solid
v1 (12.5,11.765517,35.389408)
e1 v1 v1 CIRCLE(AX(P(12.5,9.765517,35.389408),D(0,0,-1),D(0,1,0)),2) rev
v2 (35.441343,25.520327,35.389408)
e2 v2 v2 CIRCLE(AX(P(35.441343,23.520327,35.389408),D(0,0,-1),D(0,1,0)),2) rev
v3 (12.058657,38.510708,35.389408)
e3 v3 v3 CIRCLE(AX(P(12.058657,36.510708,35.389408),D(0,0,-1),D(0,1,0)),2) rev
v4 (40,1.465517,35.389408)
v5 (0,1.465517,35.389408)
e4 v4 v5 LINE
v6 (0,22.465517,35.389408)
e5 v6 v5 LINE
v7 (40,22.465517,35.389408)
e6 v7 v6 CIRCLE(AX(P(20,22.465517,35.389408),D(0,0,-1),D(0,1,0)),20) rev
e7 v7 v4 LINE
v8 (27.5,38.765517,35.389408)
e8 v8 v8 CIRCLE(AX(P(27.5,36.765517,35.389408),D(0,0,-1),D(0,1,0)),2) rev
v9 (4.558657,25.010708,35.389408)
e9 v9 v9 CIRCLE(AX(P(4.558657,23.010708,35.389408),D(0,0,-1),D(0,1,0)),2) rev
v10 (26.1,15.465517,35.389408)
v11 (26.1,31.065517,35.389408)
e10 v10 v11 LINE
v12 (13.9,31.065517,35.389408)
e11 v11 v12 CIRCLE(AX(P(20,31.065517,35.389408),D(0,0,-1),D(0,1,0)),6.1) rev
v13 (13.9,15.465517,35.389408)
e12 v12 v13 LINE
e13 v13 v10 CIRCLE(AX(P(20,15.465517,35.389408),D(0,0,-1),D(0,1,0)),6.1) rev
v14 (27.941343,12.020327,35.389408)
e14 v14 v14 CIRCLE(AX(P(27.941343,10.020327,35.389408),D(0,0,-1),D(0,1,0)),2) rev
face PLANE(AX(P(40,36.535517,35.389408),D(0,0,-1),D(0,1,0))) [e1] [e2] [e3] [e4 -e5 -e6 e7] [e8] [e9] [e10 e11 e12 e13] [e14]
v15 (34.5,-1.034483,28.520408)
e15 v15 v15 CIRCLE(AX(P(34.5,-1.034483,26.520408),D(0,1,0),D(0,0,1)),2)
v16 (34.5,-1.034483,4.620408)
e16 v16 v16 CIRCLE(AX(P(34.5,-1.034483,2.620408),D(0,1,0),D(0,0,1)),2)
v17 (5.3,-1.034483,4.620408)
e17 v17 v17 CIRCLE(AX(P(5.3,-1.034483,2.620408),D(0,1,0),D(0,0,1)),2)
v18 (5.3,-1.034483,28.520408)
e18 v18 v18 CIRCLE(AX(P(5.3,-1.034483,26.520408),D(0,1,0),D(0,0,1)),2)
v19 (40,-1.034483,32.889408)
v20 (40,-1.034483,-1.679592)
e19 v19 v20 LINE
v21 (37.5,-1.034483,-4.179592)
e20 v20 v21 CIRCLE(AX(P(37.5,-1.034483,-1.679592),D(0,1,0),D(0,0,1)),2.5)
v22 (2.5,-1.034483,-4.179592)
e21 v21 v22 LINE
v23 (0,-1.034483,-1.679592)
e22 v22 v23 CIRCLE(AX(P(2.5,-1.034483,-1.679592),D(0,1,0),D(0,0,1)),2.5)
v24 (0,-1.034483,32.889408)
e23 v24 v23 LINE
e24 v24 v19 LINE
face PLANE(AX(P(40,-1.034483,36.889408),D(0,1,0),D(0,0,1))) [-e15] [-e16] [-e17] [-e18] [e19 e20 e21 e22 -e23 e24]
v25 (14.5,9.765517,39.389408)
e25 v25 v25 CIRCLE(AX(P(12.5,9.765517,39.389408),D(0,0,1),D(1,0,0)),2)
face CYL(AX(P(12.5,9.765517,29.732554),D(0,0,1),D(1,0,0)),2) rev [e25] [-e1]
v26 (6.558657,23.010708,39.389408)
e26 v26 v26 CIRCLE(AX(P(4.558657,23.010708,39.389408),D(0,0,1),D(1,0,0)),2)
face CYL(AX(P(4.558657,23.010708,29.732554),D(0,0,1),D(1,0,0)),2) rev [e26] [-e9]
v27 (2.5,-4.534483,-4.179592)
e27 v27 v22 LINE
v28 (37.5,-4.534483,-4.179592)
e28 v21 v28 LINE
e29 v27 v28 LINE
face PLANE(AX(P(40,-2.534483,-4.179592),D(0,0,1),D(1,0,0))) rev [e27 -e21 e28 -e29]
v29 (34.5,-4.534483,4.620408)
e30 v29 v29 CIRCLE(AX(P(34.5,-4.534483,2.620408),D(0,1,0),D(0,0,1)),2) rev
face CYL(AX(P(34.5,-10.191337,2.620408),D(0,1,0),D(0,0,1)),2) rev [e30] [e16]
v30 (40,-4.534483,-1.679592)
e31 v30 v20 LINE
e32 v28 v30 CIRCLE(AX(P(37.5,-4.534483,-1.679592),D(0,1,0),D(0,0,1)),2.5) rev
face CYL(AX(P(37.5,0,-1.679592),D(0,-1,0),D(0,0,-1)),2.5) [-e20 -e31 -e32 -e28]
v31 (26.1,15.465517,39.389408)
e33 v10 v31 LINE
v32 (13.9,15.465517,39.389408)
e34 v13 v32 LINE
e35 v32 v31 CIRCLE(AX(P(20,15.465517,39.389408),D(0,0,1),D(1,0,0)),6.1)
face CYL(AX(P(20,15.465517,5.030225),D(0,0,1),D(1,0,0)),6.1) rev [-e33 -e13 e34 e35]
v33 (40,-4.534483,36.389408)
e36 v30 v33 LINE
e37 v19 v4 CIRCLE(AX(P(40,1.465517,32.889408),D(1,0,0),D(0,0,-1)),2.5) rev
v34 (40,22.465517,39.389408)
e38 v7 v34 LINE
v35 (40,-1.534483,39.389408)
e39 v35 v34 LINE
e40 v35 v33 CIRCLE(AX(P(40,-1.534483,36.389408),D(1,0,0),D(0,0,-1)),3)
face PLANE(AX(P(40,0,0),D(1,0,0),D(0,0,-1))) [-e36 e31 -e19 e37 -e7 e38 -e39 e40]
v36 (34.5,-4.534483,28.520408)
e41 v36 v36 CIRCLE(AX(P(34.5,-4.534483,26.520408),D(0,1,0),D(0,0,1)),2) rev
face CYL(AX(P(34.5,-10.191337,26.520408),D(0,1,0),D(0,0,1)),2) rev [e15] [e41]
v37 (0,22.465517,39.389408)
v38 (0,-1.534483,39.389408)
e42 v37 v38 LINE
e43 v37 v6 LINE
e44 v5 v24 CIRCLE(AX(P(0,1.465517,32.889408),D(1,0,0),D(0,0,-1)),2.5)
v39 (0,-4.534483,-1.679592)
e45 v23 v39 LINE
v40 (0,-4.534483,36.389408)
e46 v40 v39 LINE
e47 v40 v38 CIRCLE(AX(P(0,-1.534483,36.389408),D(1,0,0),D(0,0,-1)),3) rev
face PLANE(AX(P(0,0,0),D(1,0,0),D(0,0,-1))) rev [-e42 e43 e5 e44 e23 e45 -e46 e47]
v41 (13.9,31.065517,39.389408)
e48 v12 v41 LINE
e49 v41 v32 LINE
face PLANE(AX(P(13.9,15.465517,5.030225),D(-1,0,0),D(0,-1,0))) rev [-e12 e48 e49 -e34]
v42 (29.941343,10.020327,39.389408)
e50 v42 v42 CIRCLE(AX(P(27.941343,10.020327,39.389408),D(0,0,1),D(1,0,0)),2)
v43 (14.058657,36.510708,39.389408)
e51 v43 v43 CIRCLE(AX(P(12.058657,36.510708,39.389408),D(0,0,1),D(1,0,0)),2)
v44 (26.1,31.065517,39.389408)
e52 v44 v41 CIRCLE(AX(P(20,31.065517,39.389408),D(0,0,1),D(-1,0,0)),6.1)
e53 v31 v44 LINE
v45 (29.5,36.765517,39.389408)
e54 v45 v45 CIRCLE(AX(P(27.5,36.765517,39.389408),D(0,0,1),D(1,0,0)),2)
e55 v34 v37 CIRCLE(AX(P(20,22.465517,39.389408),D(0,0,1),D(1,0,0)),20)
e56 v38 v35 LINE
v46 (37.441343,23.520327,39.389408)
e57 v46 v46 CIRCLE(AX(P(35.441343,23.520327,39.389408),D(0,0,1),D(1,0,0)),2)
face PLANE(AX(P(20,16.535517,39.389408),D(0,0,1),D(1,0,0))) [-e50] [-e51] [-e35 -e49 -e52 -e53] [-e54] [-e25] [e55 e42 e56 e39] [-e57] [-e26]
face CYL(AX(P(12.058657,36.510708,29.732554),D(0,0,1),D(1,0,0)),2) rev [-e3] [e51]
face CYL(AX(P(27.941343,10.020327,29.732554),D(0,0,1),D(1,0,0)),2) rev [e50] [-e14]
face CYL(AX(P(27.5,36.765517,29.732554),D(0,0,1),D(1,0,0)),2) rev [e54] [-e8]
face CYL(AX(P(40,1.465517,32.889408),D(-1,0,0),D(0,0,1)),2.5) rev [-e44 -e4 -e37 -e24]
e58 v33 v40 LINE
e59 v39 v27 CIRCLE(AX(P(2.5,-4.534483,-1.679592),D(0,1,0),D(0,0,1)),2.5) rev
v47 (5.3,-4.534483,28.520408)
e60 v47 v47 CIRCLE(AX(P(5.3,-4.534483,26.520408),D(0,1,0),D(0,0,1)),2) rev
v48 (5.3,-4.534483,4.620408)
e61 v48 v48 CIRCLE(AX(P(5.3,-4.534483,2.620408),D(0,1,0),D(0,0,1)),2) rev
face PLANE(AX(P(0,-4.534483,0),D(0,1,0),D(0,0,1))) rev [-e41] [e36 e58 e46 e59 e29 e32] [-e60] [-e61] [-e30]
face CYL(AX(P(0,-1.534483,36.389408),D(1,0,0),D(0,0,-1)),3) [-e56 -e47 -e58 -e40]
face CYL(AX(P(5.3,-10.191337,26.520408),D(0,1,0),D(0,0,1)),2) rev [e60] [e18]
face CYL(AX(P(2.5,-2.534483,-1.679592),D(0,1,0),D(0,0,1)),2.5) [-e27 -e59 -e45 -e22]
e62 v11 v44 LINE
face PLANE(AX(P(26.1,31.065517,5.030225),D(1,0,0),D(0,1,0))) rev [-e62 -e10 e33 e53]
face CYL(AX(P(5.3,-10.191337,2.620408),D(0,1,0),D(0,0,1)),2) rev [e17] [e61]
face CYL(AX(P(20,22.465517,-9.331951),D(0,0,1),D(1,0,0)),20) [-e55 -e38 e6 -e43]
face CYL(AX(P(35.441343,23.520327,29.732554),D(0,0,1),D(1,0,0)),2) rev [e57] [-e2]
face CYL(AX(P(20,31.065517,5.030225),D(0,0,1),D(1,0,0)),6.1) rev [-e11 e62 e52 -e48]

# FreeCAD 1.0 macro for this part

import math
import FreeCAD as App
import Part
import Sketcher

V = App.Vector
Q = App.Units.Quantity


def edges_at(feature, points):
    """Names of the edges that pass closest to the given points."""
    edges = feature.Shape.Edges
    near = lambda p: min(range(len(edges)), key=lambda i: edges[i].distToShape(Part.Vertex(*p))[0])
    return sorted({f"Edge{near(p) + 1}" for p in points})

doc = App.newDocument("Part")
params = doc.addObject("Spreadsheet::Sheet", "Params")
for row, (alias, value) in enumerate([
    ("sketch1_width", "1.5 mm"),
    ("sketch1_width2", "39.07 mm"),
    ("pad1_length", "40 mm"),
    ("sketch2_diameter", "3.3 mm"),
    ("pocket1_length", "40 mm"),
    ("sketch3_diameter", "21 mm"),
    ("sketch3_radius", "20 mm"),
    ("sketch3_diameter2", "3.3 mm"),
    ("pocket2_length", "40 mm"),
    ("sketch4_diameter", "21 mm"),
    ("sketch4_radius", "20 mm"),
    ("sketch4_diameter2", "3.3 mm"),
    ("sketch4_height", "19.07 mm"),
    ("pad2_length", "2.5 mm"),
    ("fillet_radius", "2.5 mm"),
    ("sketch5_diameter", "3.3 mm"),
    ("sketch5_width", "40 mm"),
    ("pad3_length", "2 mm"),
    ("fillet2_radius", "2.5 mm"),
    ("sketch6_diameter", "3.3 mm"),
    ("pad4_length", "3.5 mm"),
    ("sketch7_diameter", "4 mm"),
    ("pocket3_length", "3.5 mm"),
    ("fillet3_radius", "3 mm"),
    ("sketch8_width", "40 mm"),
    ("sketch8_height", "4 mm"),
    ("pad5_length", "27 mm"),
    ("fillet4_radius", "3 mm"),
    ("sketch9_radius", "20 mm"),
    ("pad6_length", "4 mm"),
    ("sketch10_radius", "6.1 mm"),
    ("sketch10_height", "15.6 mm"),
    ("pocket4_length", "4 mm"),
    ("sketch11_diameter", "4 mm"),
    ("pocket5_length", "4 mm"),
], start=1):
    params.set(f"A{row}", alias)
    params.set(f"B{row}", "=" + value)
    params.setAlias(f"B{row}", alias)

body = doc.addObject("PartDesign::Body", "Body")

sketch1 = doc.addObject("Sketcher::SketchObject", "Sketch")
body.addObject(sketch1)
sketch1.AttachmentSupport = (doc.YZ_Plane, [""])
sketch1.MapMode = "FlatFace"
sketch1.addGeometry(Part.LineSegment(V(36.535517, 36.889408, 0), V(-2.534483, 36.889408, 0)), False)
sketch1.addGeometry(Part.LineSegment(V(-2.534483, 36.889408, 0), V(-2.534483, -4.179592, 0)), False)
sketch1.addGeometry(Part.LineSegment(V(-2.534483, -4.179592, 0), V(-1.034483, -4.179592, 0)), False)
sketch1.addGeometry(Part.LineSegment(V(-1.034483, -4.179592, 0), V(-1.034483, 35.389408, 0)), False)
sketch1.addGeometry(Part.LineSegment(V(-1.034483, 35.389408, 0), V(36.535517, 35.389408, 0)), False)
sketch1.addGeometry(Part.LineSegment(V(36.535517, 35.389408, 0), V(36.535517, 36.889408, 0)), False)
sketch1.addConstraint(Sketcher.Constraint("Coincident", 0, 2, 1, 1))
sketch1.addConstraint(Sketcher.Constraint("Coincident", 1, 2, 2, 1))
sketch1.addConstraint(Sketcher.Constraint("Coincident", 2, 2, 3, 1))
sketch1.addConstraint(Sketcher.Constraint("Coincident", 3, 2, 4, 1))
sketch1.addConstraint(Sketcher.Constraint("Coincident", 4, 2, 5, 1))
sketch1.addConstraint(Sketcher.Constraint("Coincident", 5, 2, 0, 1))
sketch1.addConstraint(Sketcher.Constraint("Horizontal", 0))
sketch1.addConstraint(Sketcher.Constraint("Vertical", 1))
sketch1.addConstraint(Sketcher.Constraint("Horizontal", 2))
sketch1.addConstraint(Sketcher.Constraint("Vertical", 3))
sketch1.addConstraint(Sketcher.Constraint("Horizontal", 4))
sketch1.addConstraint(Sketcher.Constraint("Vertical", 5))
sketch1.addConstraint(Sketcher.Constraint("Equal", 2, 5))
sketch1.addConstraint(Sketcher.Constraint("DistanceX", 2, 1, 2, 2, Q("1.5 mm")))
sketch1.addConstraint(Sketcher.Constraint("DistanceX", 0, 2, 0, 1, Q("39.07 mm")))
sketch1.addConstraint(Sketcher.Constraint("DistanceY", 1, 2, 1, 1, Q("41.069 mm")))
sketch1.addConstraint(Sketcher.Constraint("DistanceY", -1, 1, 0, 2, Q("36.889408 mm")))
sketch1.addConstraint(Sketcher.Constraint("DistanceX", 0, 2, -1, 1, Q("2.534483 mm")))
sketch1.setExpression("Constraints[13]", "Params.sketch1_width")
sketch1.setExpression("Constraints[14]", "Params.sketch1_width2")
pad1 = doc.addObject("PartDesign::Pad", "Pad")
body.addObject(pad1)
pad1.Profile = sketch1
pad1.setExpression("Length", "Params.pad1_length")

sketch2 = doc.addObject("Sketcher::SketchObject", "Sketch001")
body.addObject(sketch2)
sketch2.AttachmentSupport = (doc.XZ_Plane, [""])
sketch2.MapMode = "FlatFace"
sketch2.AttachmentOffset = App.Placement(V(0, 0, 1.034483), App.Rotation())
sketch2.addGeometry(Part.Circle(V(4.5, 30.820408, 0), V(0, 0, 1), 1.65), False)
sketch2.addGeometry(Part.Circle(V(4.5, 20.820408, 0), V(0, 0, 1), 1.65), False)
sketch2.addGeometry(Part.Circle(V(4.5, 10.820408, 0), V(0, 0, 1), 1.65), False)
sketch2.addGeometry(Part.Circle(V(4.5, 0.820408, 0), V(0, 0, 1), 1.65), False)
sketch2.addGeometry(Part.Circle(V(35.5, 30.820408, 0), V(0, 0, 1), 1.65), False)
sketch2.addGeometry(Part.Circle(V(35.5, 20.820408, 0), V(0, 0, 1), 1.65), False)
sketch2.addGeometry(Part.Circle(V(35.5, 10.820408, 0), V(0, 0, 1), 1.65), False)
sketch2.addGeometry(Part.Circle(V(35.5, 0.820408, 0), V(0, 0, 1), 1.65), False)
sketch2.addConstraint(Sketcher.Constraint("Equal", 0, 1))
sketch2.addConstraint(Sketcher.Constraint("Equal", 1, 2))
sketch2.addConstraint(Sketcher.Constraint("Equal", 2, 3))
sketch2.addConstraint(Sketcher.Constraint("Equal", 3, 4))
sketch2.addConstraint(Sketcher.Constraint("Equal", 4, 5))
sketch2.addConstraint(Sketcher.Constraint("Equal", 5, 6))
sketch2.addConstraint(Sketcher.Constraint("Equal", 6, 7))
sketch2.addConstraint(Sketcher.Constraint("Horizontal", 0, 3, 4, 3))
sketch2.addConstraint(Sketcher.Constraint("Horizontal", 1, 3, 5, 3))
sketch2.addConstraint(Sketcher.Constraint("Horizontal", 2, 3, 6, 3))
sketch2.addConstraint(Sketcher.Constraint("Horizontal", 3, 3, 7, 3))
sketch2.addConstraint(Sketcher.Constraint("Vertical", 0, 3, 1, 3))
sketch2.addConstraint(Sketcher.Constraint("Vertical", 1, 3, 2, 3))
sketch2.addConstraint(Sketcher.Constraint("Vertical", 2, 3, 3, 3))
sketch2.addConstraint(Sketcher.Constraint("Vertical", 4, 3, 5, 3))
sketch2.addConstraint(Sketcher.Constraint("Vertical", 5, 3, 6, 3))
sketch2.addConstraint(Sketcher.Constraint("Vertical", 6, 3, 7, 3))
sketch2.addConstraint(Sketcher.Constraint("Diameter", 0, Q("3.3 mm")))
sketch2.addConstraint(Sketcher.Constraint("DistanceY", 1, 3, 0, 3, Q("10 mm")))
sketch2.addConstraint(Sketcher.Constraint("DistanceY", 2, 3, 1, 3, Q("10 mm")))
sketch2.addConstraint(Sketcher.Constraint("DistanceY", 3, 3, 2, 3, Q("10 mm")))
sketch2.addConstraint(Sketcher.Constraint("DistanceX", 0, 3, 4, 3, Q("31 mm")))
sketch2.addConstraint(Sketcher.Constraint("DistanceX", -1, 1, 0, 3, Q("4.5 mm")))
sketch2.addConstraint(Sketcher.Constraint("DistanceY", -1, 1, 0, 3, Q("30.820408 mm")))
sketch2.setExpression("Constraints[17]", "Params.sketch2_diameter")
pocket1 = doc.addObject("PartDesign::Pocket", "Pocket")
body.addObject(pocket1)
pocket1.Profile = sketch2
pocket1.setExpression("Length", "Params.pocket1_length")
pocket1.Reversed = True

sketch3 = doc.addObject("Sketcher::SketchObject", "Sketch002")
body.addObject(sketch3)
sketch3.AttachmentSupport = (doc.XY_Plane, [""])
sketch3.MapMode = "FlatFace"
sketch3.AttachmentOffset = App.Placement(V(0, 0, 35.389408), App.Rotation())
sketch3.addGeometry(Part.Circle(V(20, 16.535517, 0), V(0, 0, 1), 10.5), False)
sketch3.addGeometry(Part.Circle(V(11.070999, 25.983953, 0), V(0, 0, 1), 1.65), False)
sketch3.addGeometry(Part.Circle(V(10.551564, 7.606516, 0), V(0, 0, 1), 1.65), False)
sketch3.addGeometry(Part.Circle(V(29.448436, 25.464519, 0), V(0, 0, 1), 1.65), False)
sketch3.addGeometry(Part.Circle(V(28.929001, 7.087082, 0), V(0, 0, 1), 1.65), False)
sketch3.addGeometry(Part.LineSegment(V(40, 36.535517, 0), V(40, 16.535517, 0)), False)
sketch3.addGeometry(Part.ArcOfCircle(Part.Circle(V(20, 16.535517, 0), V(0, 0, 1), 20), math.radians(0), math.radians(90)), False)
sketch3.addGeometry(Part.LineSegment(V(20, 36.535517, 0), V(40, 36.535517, 0)), False)
sketch3.addGeometry(Part.LineSegment(V(0, 36.535517, 0), V(20, 36.535517, 0)), False)
sketch3.addGeometry(Part.ArcOfCircle(Part.Circle(V(20, 16.535517, 0), V(0, 0, 1), 20), math.radians(90), math.radians(179.999997)), False)
sketch3.addGeometry(Part.LineSegment(V(0, 16.535518, 0), V(0, 36.535517, 0)), False)
sketch3.addConstraint(Sketcher.Constraint("Tangent", 5, 2, 6, 1))
sketch3.addConstraint(Sketcher.Constraint("Tangent", 6, 2, 7, 1))
sketch3.addConstraint(Sketcher.Constraint("Coincident", 7, 2, 5, 1))
sketch3.addConstraint(Sketcher.Constraint("Tangent", 8, 2, 9, 1))
sketch3.addConstraint(Sketcher.Constraint("Tangent", 9, 2, 10, 1))
sketch3.addConstraint(Sketcher.Constraint("Coincident", 10, 2, 8, 1))
sketch3.addConstraint(Sketcher.Constraint("Vertical", 5))
sketch3.addConstraint(Sketcher.Constraint("Horizontal", 7))
sketch3.addConstraint(Sketcher.Constraint("Horizontal", 8))
sketch3.addConstraint(Sketcher.Constraint("Vertical", 10))
sketch3.addConstraint(Sketcher.Constraint("Coincident", 6, 3, 0, 3))
sketch3.addConstraint(Sketcher.Constraint("Coincident", 9, 3, 0, 3))
sketch3.addConstraint(Sketcher.Constraint("Equal", 1, 2))
sketch3.addConstraint(Sketcher.Constraint("Equal", 2, 3))
sketch3.addConstraint(Sketcher.Constraint("Equal", 3, 4))
sketch3.addConstraint(Sketcher.Constraint("Equal", 6, 9))
sketch3.addConstraint(Sketcher.Constraint("PointOnObject", 9, 2, -2))
sketch3.addConstraint(Sketcher.Constraint("Diameter", 0, Q("21 mm")))
sketch3.addConstraint(Sketcher.Constraint("Radius", 6, Q("20 mm")))
sketch3.addConstraint(Sketcher.Constraint("Diameter", 1, Q("3.3 mm")))
sketch3.addConstraint(Sketcher.Constraint("DistanceX", -1, 1, 1, 3, Q("11.070999 mm")))
sketch3.addConstraint(Sketcher.Constraint("DistanceX", -1, 1, 4, 3, Q("28.929001 mm")))
sketch3.addConstraint(Sketcher.Constraint("DistanceY", 2, 3, 0, 3, Q("8.929001 mm")))
sketch3.addConstraint(Sketcher.Constraint("DistanceY", 0, 3, 3, 3, Q("8.929001 mm")))
sketch3.addConstraint(Sketcher.Constraint("DistanceY", -1, 1, 3, 3, Q("25.464519 mm")))
sketch3.addConstraint(Sketcher.Constraint("DistanceY", -1, 1, 4, 3, Q("7.087082 mm")))
sketch3.addConstraint(Sketcher.Constraint("DistanceX", 2, 3, 3, 3, Q("18.896871 mm")))
sketch3.addConstraint(Sketcher.Constraint("DistanceY", 4, 3, 1, 3, Q("18.896871 mm")))
sketch3.addConstraint(Sketcher.Constraint("DistanceX", -1, 1, 2, 3, Q("10.551564 mm")))
sketch3.setExpression("Constraints[17]", "Params.sketch3_diameter")
sketch3.setExpression("Constraints[18]", "Params.sketch3_radius")
sketch3.setExpression("Constraints[19]", "Params.sketch3_diameter2")
pocket2 = doc.addObject("PartDesign::Pocket", "Pocket001")
body.addObject(pocket2)
pocket2.Profile = sketch3
pocket2.setExpression("Length", "Params.pocket2_length")
pocket2.Reversed = True

sketch4 = doc.addObject("Sketcher::SketchObject", "Sketch003")
body.addObject(sketch4)
sketch4.AttachmentSupport = (doc.XY_Plane, [""])
sketch4.MapMode = "FlatFace"
sketch4.AttachmentOffset = App.Placement(V(0, 0, 36.889408), App.Rotation())
sketch4.addGeometry(Part.LineSegment(V(0, 16.535517, 0), V(0, -2.534483, 0)), False)
sketch4.addGeometry(Part.LineSegment(V(0, -2.534483, 0), V(40, -2.534483, 0)), False)
sketch4.addGeometry(Part.LineSegment(V(40, -2.534483, 0), V(40, 16.535517, 0)), False)
sketch4.addGeometry(Part.ArcOfCircle(Part.Circle(V(20, 16.535517, 0), V(0, 0, 1), 20), math.radians(0), math.radians(180)), False)
sketch4.addGeometry(Part.Circle(V(10.551564, 7.606516, 0), V(0, 0, 1), 1.65), False)
sketch4.addGeometry(Part.Circle(V(28.929001, 7.087082, 0), V(0, 0, 1), 1.65), False)
sketch4.addGeometry(Part.Circle(V(20, 16.535517, 0), V(0, 0, 1), 10.5), False)
sketch4.addGeometry(Part.Circle(V(11.070999, 25.983953, 0), V(0, 0, 1), 1.65), False)
sketch4.addGeometry(Part.Circle(V(29.448436, 25.464519, 0), V(0, 0, 1), 1.65), False)
sketch4.addConstraint(Sketcher.Constraint("Coincident", 0, 2, 1, 1))
sketch4.addConstraint(Sketcher.Constraint("Coincident", 1, 2, 2, 1))
sketch4.addConstraint(Sketcher.Constraint("Tangent", 2, 2, 3, 1))
sketch4.addConstraint(Sketcher.Constraint("Tangent", 3, 2, 0, 1))
sketch4.addConstraint(Sketcher.Constraint("Vertical", 0))
sketch4.addConstraint(Sketcher.Constraint("Horizontal", 1))
sketch4.addConstraint(Sketcher.Constraint("Vertical", 2))
sketch4.addConstraint(Sketcher.Constraint("Coincident", 6, 3, 3, 3))
sketch4.addConstraint(Sketcher.Constraint("Equal", 4, 5))
sketch4.addConstraint(Sketcher.Constraint("Equal", 5, 7))
sketch4.addConstraint(Sketcher.Constraint("Equal", 7, 8))
sketch4.addConstraint(Sketcher.Constraint("PointOnObject", 0, 2, -2))
sketch4.addConstraint(Sketcher.Constraint("Diameter", 6, Q("21 mm")))
sketch4.addConstraint(Sketcher.Constraint("Radius", 3, Q("20 mm")))
sketch4.addConstraint(Sketcher.Constraint("Diameter", 4, Q("3.3 mm")))
sketch4.addConstraint(Sketcher.Constraint("DistanceY", 0, 2, 0, 1, Q("19.07 mm")))
sketch4.addConstraint(Sketcher.Constraint("DistanceX", -1, 1, 5, 3, Q("28.929001 mm")))
sketch4.addConstraint(Sketcher.Constraint("DistanceX", -1, 1, 7, 3, Q("11.070999 mm")))
sketch4.addConstraint(Sketcher.Constraint("DistanceY", 4, 3, 3, 3, Q("8.929001 mm")))
sketch4.addConstraint(Sketcher.Constraint("DistanceY", 3, 3, 8, 3, Q("8.929001 mm")))
sketch4.addConstraint(Sketcher.Constraint("DistanceY", -1, 1, 5, 3, Q("7.087082 mm")))
sketch4.addConstraint(Sketcher.Constraint("DistanceY", -1, 1, 8, 3, Q("25.464519 mm")))
sketch4.addConstraint(Sketcher.Constraint("DistanceY", 5, 3, 7, 3, Q("18.896871 mm")))
sketch4.addConstraint(Sketcher.Constraint("DistanceX", 4, 3, 8, 3, Q("18.896871 mm")))
sketch4.addConstraint(Sketcher.Constraint("DistanceX", -1, 1, 4, 3, Q("10.551564 mm")))
sketch4.setExpression("Constraints[12]", "Params.sketch4_diameter")
sketch4.setExpression("Constraints[13]", "Params.sketch4_radius")
sketch4.setExpression("Constraints[14]", "Params.sketch4_diameter2")
sketch4.setExpression("Constraints[15]", "Params.sketch4_height")
pad2 = doc.addObject("PartDesign::Pad", "Pad001")
body.addObject(pad2)
pad2.Profile = sketch4
pad2.setExpression("Length", "Params.pad2_length")
doc.recompute()

fillet = doc.addObject("PartDesign::Fillet", "Fillet")
body.addObject(fillet)
fillet.Base = (pad2, edges_at(pad2, [(20, -1.034, 35.389)]))
fillet.setExpression("Radius", "Params.fillet_radius")

sketch5 = doc.addObject("Sketcher::SketchObject", "Sketch004")
body.addObject(sketch5)
sketch5.AttachmentSupport = (doc.XZ_Plane, [""])
sketch5.MapMode = "FlatFace"
sketch5.AttachmentOffset = App.Placement(V(0, 0, 2.534483), App.Rotation())
sketch5.addGeometry(Part.LineSegment(V(0, 39.389408, 0), V(0, -4.179592, 0)), False)
sketch5.addGeometry(Part.LineSegment(V(0, -4.179592, 0), V(40, -4.179592, 0)), False)
sketch5.addGeometry(Part.LineSegment(V(40, -4.179592, 0), V(40, 39.389408, 0)), False)
sketch5.addGeometry(Part.LineSegment(V(40, 39.389408, 0), V(0, 39.389408, 0)), False)
sketch5.addGeometry(Part.Circle(V(4.5, 0.820408, 0), V(0, 0, 1), 1.65), False)
sketch5.addGeometry(Part.Circle(V(4.5, 10.820408, 0), V(0, 0, 1), 1.65), False)
sketch5.addGeometry(Part.Circle(V(35.5, 0.820408, 0), V(0, 0, 1), 1.65), False)
sketch5.addGeometry(Part.Circle(V(35.5, 10.820408, 0), V(0, 0, 1), 1.65), False)
sketch5.addGeometry(Part.Circle(V(4.5, 20.820408, 0), V(0, 0, 1), 1.65), False)
sketch5.addGeometry(Part.Circle(V(4.5, 30.820408, 0), V(0, 0, 1), 1.65), False)
sketch5.addGeometry(Part.Circle(V(35.5, 20.820408, 0), V(0, 0, 1), 1.65), False)
sketch5.addGeometry(Part.Circle(V(35.5, 30.820408, 0), V(0, 0, 1), 1.65), False)
sketch5.addConstraint(Sketcher.Constraint("Coincident", 0, 2, 1, 1))
sketch5.addConstraint(Sketcher.Constraint("Coincident", 1, 2, 2, 1))
sketch5.addConstraint(Sketcher.Constraint("Coincident", 2, 2, 3, 1))
sketch5.addConstraint(Sketcher.Constraint("Coincident", 3, 2, 0, 1))
sketch5.addConstraint(Sketcher.Constraint("Vertical", 0))
sketch5.addConstraint(Sketcher.Constraint("Horizontal", 1))
sketch5.addConstraint(Sketcher.Constraint("Vertical", 2))
sketch5.addConstraint(Sketcher.Constraint("Horizontal", 3))
sketch5.addConstraint(Sketcher.Constraint("Equal", 4, 5))
sketch5.addConstraint(Sketcher.Constraint("Equal", 5, 6))
sketch5.addConstraint(Sketcher.Constraint("Equal", 6, 7))
sketch5.addConstraint(Sketcher.Constraint("Equal", 7, 8))
sketch5.addConstraint(Sketcher.Constraint("Equal", 8, 9))
sketch5.addConstraint(Sketcher.Constraint("Equal", 9, 10))
sketch5.addConstraint(Sketcher.Constraint("Equal", 10, 11))
sketch5.addConstraint(Sketcher.Constraint("PointOnObject", 0, 2, -2))
sketch5.addConstraint(Sketcher.Constraint("Horizontal", 4, 3, 6, 3))
sketch5.addConstraint(Sketcher.Constraint("Horizontal", 5, 3, 7, 3))
sketch5.addConstraint(Sketcher.Constraint("Horizontal", 8, 3, 10, 3))
sketch5.addConstraint(Sketcher.Constraint("Horizontal", 9, 3, 11, 3))
sketch5.addConstraint(Sketcher.Constraint("Vertical", 4, 3, 5, 3))
sketch5.addConstraint(Sketcher.Constraint("Vertical", 6, 3, 7, 3))
sketch5.addConstraint(Sketcher.Constraint("Vertical", 5, 3, 8, 3))
sketch5.addConstraint(Sketcher.Constraint("Vertical", 8, 3, 9, 3))
sketch5.addConstraint(Sketcher.Constraint("Vertical", 7, 3, 10, 3))
sketch5.addConstraint(Sketcher.Constraint("Vertical", 10, 3, 11, 3))
sketch5.addConstraint(Sketcher.Constraint("Diameter", 4, Q("3.3 mm")))
sketch5.addConstraint(Sketcher.Constraint("DistanceX", 1, 1, 1, 2, Q("40 mm")))
sketch5.addConstraint(Sketcher.Constraint("DistanceY", 4, 3, 5, 3, Q("10 mm")))
sketch5.addConstraint(Sketcher.Constraint("DistanceX", 4, 3, 6, 3, Q("31 mm")))
sketch5.addConstraint(Sketcher.Constraint("DistanceY", 5, 3, 8, 3, Q("10 mm")))
sketch5.addConstraint(Sketcher.Constraint("DistanceY", 8, 3, 9, 3, Q("10 mm")))
sketch5.addConstraint(Sketcher.Constraint("DistanceY", 0, 2, 4, 3, Q("5 mm")))
sketch5.addConstraint(Sketcher.Constraint("DistanceX", -1, 1, 4, 3, Q("4.5 mm")))
sketch5.addConstraint(Sketcher.Constraint("DistanceY", 0, 2, 0, 1, Q("43.569 mm")))
sketch5.addConstraint(Sketcher.Constraint("DistanceY", -1, 1, 4, 3, Q("0.820408 mm")))
sketch5.setExpression("Constraints[26]", "Params.sketch5_diameter")
sketch5.setExpression("Constraints[27]", "Params.sketch5_width")
pad3 = doc.addObject("PartDesign::Pad", "Pad002")
body.addObject(pad3)
pad3.Profile = sketch5
pad3.setExpression("Length", "Params.pad3_length")
doc.recompute()

fillet2 = doc.addObject("PartDesign::Fillet", "Fillet001")
body.addObject(fillet2)
fillet2.Base = (pad3, edges_at(pad3, [(40, -2.784, -4.18), (0, -2.784, -4.18)]))
fillet2.setExpression("Radius", "Params.fillet2_radius")

sketch6 = doc.addObject("Sketcher::SketchObject", "Sketch005")
body.addObject(sketch6)
sketch6.AttachmentSupport = (doc.XZ_Plane, [""])
sketch6.MapMode = "FlatFace"
sketch6.AttachmentOffset = App.Placement(V(0, 0, 1.034483), App.Rotation())
sketch6.addGeometry(Part.Circle(V(35.5, 0.820408, 0), V(0, 0, 1), 1.65), False)
sketch6.addGeometry(Part.Circle(V(35.5, 10.820408, 0), V(0, 0, 1), 1.65), False)
sketch6.addGeometry(Part.Circle(V(35.5, 20.820408, 0), V(0, 0, 1), 1.65), False)
sketch6.addGeometry(Part.Circle(V(35.5, 30.820408, 0), V(0, 0, 1), 1.65), False)
sketch6.addGeometry(Part.Circle(V(4.5, 0.820408, 0), V(0, 0, 1), 1.65), False)
sketch6.addGeometry(Part.Circle(V(4.5, 10.820408, 0), V(0, 0, 1), 1.65), False)
sketch6.addGeometry(Part.Circle(V(4.5, 20.820408, 0), V(0, 0, 1), 1.65), False)
sketch6.addGeometry(Part.Circle(V(4.5, 30.820408, 0), V(0, 0, 1), 1.65), False)
sketch6.addConstraint(Sketcher.Constraint("Equal", 0, 1))
sketch6.addConstraint(Sketcher.Constraint("Equal", 1, 2))
sketch6.addConstraint(Sketcher.Constraint("Equal", 2, 3))
sketch6.addConstraint(Sketcher.Constraint("Equal", 3, 4))
sketch6.addConstraint(Sketcher.Constraint("Equal", 4, 5))
sketch6.addConstraint(Sketcher.Constraint("Equal", 5, 6))
sketch6.addConstraint(Sketcher.Constraint("Equal", 6, 7))
sketch6.addConstraint(Sketcher.Constraint("Horizontal", 0, 3, 4, 3))
sketch6.addConstraint(Sketcher.Constraint("Horizontal", 1, 3, 5, 3))
sketch6.addConstraint(Sketcher.Constraint("Horizontal", 2, 3, 6, 3))
sketch6.addConstraint(Sketcher.Constraint("Horizontal", 3, 3, 7, 3))
sketch6.addConstraint(Sketcher.Constraint("Vertical", 0, 3, 1, 3))
sketch6.addConstraint(Sketcher.Constraint("Vertical", 1, 3, 2, 3))
sketch6.addConstraint(Sketcher.Constraint("Vertical", 2, 3, 3, 3))
sketch6.addConstraint(Sketcher.Constraint("Vertical", 4, 3, 5, 3))
sketch6.addConstraint(Sketcher.Constraint("Vertical", 5, 3, 6, 3))
sketch6.addConstraint(Sketcher.Constraint("Vertical", 6, 3, 7, 3))
sketch6.addConstraint(Sketcher.Constraint("Diameter", 0, Q("3.3 mm")))
sketch6.addConstraint(Sketcher.Constraint("DistanceY", 0, 3, 1, 3, Q("10 mm")))
sketch6.addConstraint(Sketcher.Constraint("DistanceY", 1, 3, 2, 3, Q("10 mm")))
sketch6.addConstraint(Sketcher.Constraint("DistanceY", 2, 3, 3, 3, Q("10 mm")))
sketch6.addConstraint(Sketcher.Constraint("DistanceX", 4, 3, 0, 3, Q("31 mm")))
sketch6.addConstraint(Sketcher.Constraint("DistanceX", -1, 1, 0, 3, Q("35.5 mm")))
sketch6.addConstraint(Sketcher.Constraint("DistanceY", -1, 1, 0, 3, Q("0.820408 mm")))
sketch6.setExpression("Constraints[17]", "Params.sketch6_diameter")
pad4 = doc.addObject("PartDesign::Pad", "Pad003")
body.addObject(pad4)
pad4.Profile = sketch6
pad4.setExpression("Length", "Params.pad4_length")

sketch7 = doc.addObject("Sketcher::SketchObject", "Sketch006")
body.addObject(sketch7)
sketch7.AttachmentSupport = (doc.XZ_Plane, [""])
sketch7.MapMode = "FlatFace"
sketch7.AttachmentOffset = App.Placement(V(0, 0, 1.034483), App.Rotation())
sketch7.addGeometry(Part.Circle(V(34.5, 2.620408, 0), V(0, 0, 1), 2), False)
sketch7.addGeometry(Part.Circle(V(34.5, 26.520408, 0), V(0, 0, 1), 2), False)
sketch7.addGeometry(Part.Circle(V(5.3, 2.620408, 0), V(0, 0, 1), 2), False)
sketch7.addGeometry(Part.Circle(V(5.3, 26.520408, 0), V(0, 0, 1), 2), False)
sketch7.addConstraint(Sketcher.Constraint("Equal", 0, 1))
sketch7.addConstraint(Sketcher.Constraint("Equal", 1, 2))
sketch7.addConstraint(Sketcher.Constraint("Equal", 2, 3))
sketch7.addConstraint(Sketcher.Constraint("Horizontal", 0, 3, 2, 3))
sketch7.addConstraint(Sketcher.Constraint("Horizontal", 1, 3, 3, 3))
sketch7.addConstraint(Sketcher.Constraint("Vertical", 0, 3, 1, 3))
sketch7.addConstraint(Sketcher.Constraint("Vertical", 2, 3, 3, 3))
sketch7.addConstraint(Sketcher.Constraint("Diameter", 0, Q("4 mm")))
sketch7.addConstraint(Sketcher.Constraint("DistanceX", -1, 1, 0, 3, Q("34.5 mm")))
sketch7.addConstraint(Sketcher.Constraint("DistanceX", -1, 1, 2, 3, Q("5.3 mm")))
sketch7.addConstraint(Sketcher.Constraint("DistanceY", 0, 3, 1, 3, Q("23.9 mm")))
sketch7.addConstraint(Sketcher.Constraint("DistanceY", -1, 1, 0, 3, Q("2.620408 mm")))
sketch7.setExpression("Constraints[7]", "Params.sketch7_diameter")
pocket3 = doc.addObject("PartDesign::Pocket", "Pocket002")
body.addObject(pocket3)
pocket3.Profile = sketch7
pocket3.setExpression("Length", "Params.pocket3_length")
pocket3.Reversed = True
doc.recompute()

fillet3 = doc.addObject("PartDesign::Fillet", "Fillet002")
body.addObject(fillet3)
fillet3.Base = (pocket3, edges_at(pocket3, [(20, -4.534, 39.389)]))
fillet3.setExpression("Radius", "Params.fillet3_radius")

sketch8 = doc.addObject("Sketcher::SketchObject", "Sketch007")
body.addObject(sketch8)
sketch8.AttachmentSupport = (doc.XZ_Plane, [""])
sketch8.MapMode = "FlatFace"
sketch8.AttachmentOffset = App.Placement(V(0, 0, 4.534483), App.Rotation())
sketch8.addGeometry(Part.LineSegment(V(0, 39.389408, 0), V(0, 35.389408, 0)), False)
sketch8.addGeometry(Part.LineSegment(V(0, 35.389408, 0), V(40, 35.389408, 0)), False)
sketch8.addGeometry(Part.LineSegment(V(40, 35.389408, 0), V(40, 39.389408, 0)), False)
sketch8.addGeometry(Part.LineSegment(V(40, 39.389408, 0), V(0, 39.389408, 0)), False)
sketch8.addConstraint(Sketcher.Constraint("Coincident", 0, 2, 1, 1))
sketch8.addConstraint(Sketcher.Constraint("Coincident", 1, 2, 2, 1))
sketch8.addConstraint(Sketcher.Constraint("Coincident", 2, 2, 3, 1))
sketch8.addConstraint(Sketcher.Constraint("Coincident", 3, 2, 0, 1))
sketch8.addConstraint(Sketcher.Constraint("Vertical", 0))
sketch8.addConstraint(Sketcher.Constraint("Horizontal", 1))
sketch8.addConstraint(Sketcher.Constraint("Vertical", 2))
sketch8.addConstraint(Sketcher.Constraint("Horizontal", 3))
sketch8.addConstraint(Sketcher.Constraint("PointOnObject", 0, 2, -2))
sketch8.addConstraint(Sketcher.Constraint("DistanceX", 1, 1, 1, 2, Q("40 mm")))
sketch8.addConstraint(Sketcher.Constraint("DistanceY", 0, 2, 0, 1, Q("4 mm")))
sketch8.addConstraint(Sketcher.Constraint("DistanceY", -1, 1, 0, 2, Q("35.389408 mm")))
sketch8.setExpression("Constraints[9]", "Params.sketch8_width")
sketch8.setExpression("Constraints[10]", "Params.sketch8_height")
pad5 = doc.addObject("PartDesign::Pad", "Pad004")
body.addObject(pad5)
pad5.Profile = sketch8
pad5.setExpression("Length", "Params.pad5_length")
pad5.Reversed = True
doc.recompute()

fillet4 = doc.addObject("PartDesign::Fillet", "Fillet003")
body.addObject(fillet4)
fillet4.Base = (pad5, edges_at(pad5, [(20, -4.534, 39.389)]))
fillet4.setExpression("Radius", "Params.fillet4_radius")

sketch9 = doc.addObject("Sketcher::SketchObject", "Sketch008")
body.addObject(sketch9)
sketch9.AttachmentSupport = (doc.XY_Plane, [""])
sketch9.MapMode = "FlatFace"
sketch9.AttachmentOffset = App.Placement(V(0, 0, 39.389408), App.Rotation())
sketch9.addGeometry(Part.LineSegment(V(0, 22.465517, 0), V(40, 22.465517, 0)), False)
sketch9.addGeometry(Part.ArcOfCircle(Part.Circle(V(20, 22.465517, 0), V(0, 0, 1), 20), math.radians(0), math.radians(180)), False)
sketch9.addConstraint(Sketcher.Constraint("Coincident", 0, 1, 1, 2))
sketch9.addConstraint(Sketcher.Constraint("Coincident", 1, 1, 0, 2))
sketch9.addConstraint(Sketcher.Constraint("Horizontal", 0))
sketch9.addConstraint(Sketcher.Constraint("PointOnObject", 0, 1, -2))
sketch9.addConstraint(Sketcher.Constraint("Horizontal", 1, 3, 0, 1))
sketch9.addConstraint(Sketcher.Constraint("Radius", 1, Q("20 mm")))
sketch9.addConstraint(Sketcher.Constraint("DistanceY", -1, 1, 1, 3, Q("22.465517 mm")))
sketch9.setExpression("Constraints[5]", "Params.sketch9_radius")
pad6 = doc.addObject("PartDesign::Pad", "Pad005")
body.addObject(pad6)
pad6.Profile = sketch9
pad6.setExpression("Length", "Params.pad6_length")
pad6.Reversed = True

sketch10 = doc.addObject("Sketcher::SketchObject", "Sketch009")
body.addObject(sketch10)
sketch10.AttachmentSupport = (doc.XY_Plane, [""])
sketch10.MapMode = "FlatFace"
sketch10.AttachmentOffset = App.Placement(V(0, 0, 39.389408), App.Rotation())
sketch10.addGeometry(Part.LineSegment(V(26.1, 15.465517, 0), V(26.1, 31.065517, 0)), False)
sketch10.addGeometry(Part.ArcOfCircle(Part.Circle(V(20, 31.065517, 0), V(0, 0, 1), 6.1), math.radians(0), math.radians(180)), False)
sketch10.addGeometry(Part.LineSegment(V(13.9, 31.065517, 0), V(13.9, 15.465517, 0)), False)
sketch10.addGeometry(Part.ArcOfCircle(Part.Circle(V(20, 15.465517, 0), V(0, 0, 1), 6.1), math.radians(180), math.radians(360)), False)
sketch10.addConstraint(Sketcher.Constraint("Tangent", 0, 2, 1, 1))
sketch10.addConstraint(Sketcher.Constraint("Tangent", 1, 2, 2, 1))
sketch10.addConstraint(Sketcher.Constraint("Tangent", 2, 2, 3, 1))
sketch10.addConstraint(Sketcher.Constraint("Tangent", 3, 2, 0, 1))
sketch10.addConstraint(Sketcher.Constraint("Vertical", 0))
sketch10.addConstraint(Sketcher.Constraint("Vertical", 2))
sketch10.addConstraint(Sketcher.Constraint("Radius", 1, Q("6.1 mm")))
sketch10.addConstraint(Sketcher.Constraint("DistanceY", 0, 1, 0, 2, Q("15.6 mm")))
sketch10.addConstraint(Sketcher.Constraint("DistanceX", -1, 1, 1, 3, Q("20 mm")))
sketch10.addConstraint(Sketcher.Constraint("DistanceY", -1, 1, 1, 3, Q("31.065517 mm")))
sketch10.setExpression("Constraints[6]", "Params.sketch10_radius")
sketch10.setExpression("Constraints[7]", "Params.sketch10_height")
pocket4 = doc.addObject("PartDesign::Pocket", "Pocket003")
body.addObject(pocket4)
pocket4.Profile = sketch10
pocket4.setExpression("Length", "Params.pocket4_length")

sketch11 = doc.addObject("Sketcher::SketchObject", "Sketch010")
body.addObject(sketch11)
sketch11.AttachmentSupport = (doc.XY_Plane, [""])
sketch11.MapMode = "FlatFace"
sketch11.AttachmentOffset = App.Placement(V(0, 0, 39.389408), App.Rotation())
sketch11.addGeometry(Part.Circle(V(12.5, 9.765517, 0), V(0, 0, 1), 2), False)
sketch11.addGeometry(Part.Circle(V(27.941343, 10.020327, 0), V(0, 0, 1), 2), False)
sketch11.addGeometry(Part.Circle(V(35.441343, 23.520327, 0), V(0, 0, 1), 2), False)
sketch11.addGeometry(Part.Circle(V(27.5, 36.765517, 0), V(0, 0, 1), 2), False)
sketch11.addGeometry(Part.Circle(V(12.058657, 36.510708, 0), V(0, 0, 1), 2), False)
sketch11.addGeometry(Part.Circle(V(4.558657, 23.010708, 0), V(0, 0, 1), 2), False)
sketch11.addConstraint(Sketcher.Constraint("Equal", 0, 1))
sketch11.addConstraint(Sketcher.Constraint("Equal", 1, 2))
sketch11.addConstraint(Sketcher.Constraint("Equal", 2, 3))
sketch11.addConstraint(Sketcher.Constraint("Equal", 3, 4))
sketch11.addConstraint(Sketcher.Constraint("Equal", 4, 5))
sketch11.addConstraint(Sketcher.Constraint("Diameter", 0, Q("4 mm")))
sketch11.addConstraint(Sketcher.Constraint("DistanceX", 0, 3, 3, 3, Q("15 mm")))
sketch11.addConstraint(Sketcher.Constraint("DistanceY", 0, 3, 3, 3, Q("27 mm")))
sketch11.addConstraint(Sketcher.Constraint("DistanceX", -1, 1, 0, 3, Q("12.5 mm")))
sketch11.addConstraint(Sketcher.Constraint("DistanceX", 1, 3, 2, 3, Q("7.5 mm")))
sketch11.addConstraint(Sketcher.Constraint("DistanceY", 1, 3, 2, 3, Q("13.5 mm")))
sketch11.addConstraint(Sketcher.Constraint("DistanceX", 5, 3, 4, 3, Q("7.5 mm")))
sketch11.addConstraint(Sketcher.Constraint("DistanceY", 5, 3, 4, 3, Q("13.5 mm")))
sketch11.addConstraint(Sketcher.Constraint("DistanceY", 0, 3, 1, 3, Q("0.254809 mm")))
sketch11.addConstraint(Sketcher.Constraint("DistanceY", 4, 3, 3, 3, Q("0.254809 mm")))
sketch11.addConstraint(Sketcher.Constraint("DistanceY", -1, 1, 0, 3, Q("9.765517 mm")))
sketch11.addConstraint(Sketcher.Constraint("DistanceX", -1, 1, 1, 3, Q("27.941343 mm")))
sketch11.addConstraint(Sketcher.Constraint("DistanceX", -1, 1, 4, 3, Q("12.058657 mm")))
sketch11.setExpression("Constraints[5]", "Params.sketch11_diameter")
pocket5 = doc.addObject("PartDesign::Pocket", "Pocket004")
body.addObject(pocket5)
pocket5.Profile = sketch11
pocket5.setExpression("Length", "Params.pocket5_length")

doc.recompute()
